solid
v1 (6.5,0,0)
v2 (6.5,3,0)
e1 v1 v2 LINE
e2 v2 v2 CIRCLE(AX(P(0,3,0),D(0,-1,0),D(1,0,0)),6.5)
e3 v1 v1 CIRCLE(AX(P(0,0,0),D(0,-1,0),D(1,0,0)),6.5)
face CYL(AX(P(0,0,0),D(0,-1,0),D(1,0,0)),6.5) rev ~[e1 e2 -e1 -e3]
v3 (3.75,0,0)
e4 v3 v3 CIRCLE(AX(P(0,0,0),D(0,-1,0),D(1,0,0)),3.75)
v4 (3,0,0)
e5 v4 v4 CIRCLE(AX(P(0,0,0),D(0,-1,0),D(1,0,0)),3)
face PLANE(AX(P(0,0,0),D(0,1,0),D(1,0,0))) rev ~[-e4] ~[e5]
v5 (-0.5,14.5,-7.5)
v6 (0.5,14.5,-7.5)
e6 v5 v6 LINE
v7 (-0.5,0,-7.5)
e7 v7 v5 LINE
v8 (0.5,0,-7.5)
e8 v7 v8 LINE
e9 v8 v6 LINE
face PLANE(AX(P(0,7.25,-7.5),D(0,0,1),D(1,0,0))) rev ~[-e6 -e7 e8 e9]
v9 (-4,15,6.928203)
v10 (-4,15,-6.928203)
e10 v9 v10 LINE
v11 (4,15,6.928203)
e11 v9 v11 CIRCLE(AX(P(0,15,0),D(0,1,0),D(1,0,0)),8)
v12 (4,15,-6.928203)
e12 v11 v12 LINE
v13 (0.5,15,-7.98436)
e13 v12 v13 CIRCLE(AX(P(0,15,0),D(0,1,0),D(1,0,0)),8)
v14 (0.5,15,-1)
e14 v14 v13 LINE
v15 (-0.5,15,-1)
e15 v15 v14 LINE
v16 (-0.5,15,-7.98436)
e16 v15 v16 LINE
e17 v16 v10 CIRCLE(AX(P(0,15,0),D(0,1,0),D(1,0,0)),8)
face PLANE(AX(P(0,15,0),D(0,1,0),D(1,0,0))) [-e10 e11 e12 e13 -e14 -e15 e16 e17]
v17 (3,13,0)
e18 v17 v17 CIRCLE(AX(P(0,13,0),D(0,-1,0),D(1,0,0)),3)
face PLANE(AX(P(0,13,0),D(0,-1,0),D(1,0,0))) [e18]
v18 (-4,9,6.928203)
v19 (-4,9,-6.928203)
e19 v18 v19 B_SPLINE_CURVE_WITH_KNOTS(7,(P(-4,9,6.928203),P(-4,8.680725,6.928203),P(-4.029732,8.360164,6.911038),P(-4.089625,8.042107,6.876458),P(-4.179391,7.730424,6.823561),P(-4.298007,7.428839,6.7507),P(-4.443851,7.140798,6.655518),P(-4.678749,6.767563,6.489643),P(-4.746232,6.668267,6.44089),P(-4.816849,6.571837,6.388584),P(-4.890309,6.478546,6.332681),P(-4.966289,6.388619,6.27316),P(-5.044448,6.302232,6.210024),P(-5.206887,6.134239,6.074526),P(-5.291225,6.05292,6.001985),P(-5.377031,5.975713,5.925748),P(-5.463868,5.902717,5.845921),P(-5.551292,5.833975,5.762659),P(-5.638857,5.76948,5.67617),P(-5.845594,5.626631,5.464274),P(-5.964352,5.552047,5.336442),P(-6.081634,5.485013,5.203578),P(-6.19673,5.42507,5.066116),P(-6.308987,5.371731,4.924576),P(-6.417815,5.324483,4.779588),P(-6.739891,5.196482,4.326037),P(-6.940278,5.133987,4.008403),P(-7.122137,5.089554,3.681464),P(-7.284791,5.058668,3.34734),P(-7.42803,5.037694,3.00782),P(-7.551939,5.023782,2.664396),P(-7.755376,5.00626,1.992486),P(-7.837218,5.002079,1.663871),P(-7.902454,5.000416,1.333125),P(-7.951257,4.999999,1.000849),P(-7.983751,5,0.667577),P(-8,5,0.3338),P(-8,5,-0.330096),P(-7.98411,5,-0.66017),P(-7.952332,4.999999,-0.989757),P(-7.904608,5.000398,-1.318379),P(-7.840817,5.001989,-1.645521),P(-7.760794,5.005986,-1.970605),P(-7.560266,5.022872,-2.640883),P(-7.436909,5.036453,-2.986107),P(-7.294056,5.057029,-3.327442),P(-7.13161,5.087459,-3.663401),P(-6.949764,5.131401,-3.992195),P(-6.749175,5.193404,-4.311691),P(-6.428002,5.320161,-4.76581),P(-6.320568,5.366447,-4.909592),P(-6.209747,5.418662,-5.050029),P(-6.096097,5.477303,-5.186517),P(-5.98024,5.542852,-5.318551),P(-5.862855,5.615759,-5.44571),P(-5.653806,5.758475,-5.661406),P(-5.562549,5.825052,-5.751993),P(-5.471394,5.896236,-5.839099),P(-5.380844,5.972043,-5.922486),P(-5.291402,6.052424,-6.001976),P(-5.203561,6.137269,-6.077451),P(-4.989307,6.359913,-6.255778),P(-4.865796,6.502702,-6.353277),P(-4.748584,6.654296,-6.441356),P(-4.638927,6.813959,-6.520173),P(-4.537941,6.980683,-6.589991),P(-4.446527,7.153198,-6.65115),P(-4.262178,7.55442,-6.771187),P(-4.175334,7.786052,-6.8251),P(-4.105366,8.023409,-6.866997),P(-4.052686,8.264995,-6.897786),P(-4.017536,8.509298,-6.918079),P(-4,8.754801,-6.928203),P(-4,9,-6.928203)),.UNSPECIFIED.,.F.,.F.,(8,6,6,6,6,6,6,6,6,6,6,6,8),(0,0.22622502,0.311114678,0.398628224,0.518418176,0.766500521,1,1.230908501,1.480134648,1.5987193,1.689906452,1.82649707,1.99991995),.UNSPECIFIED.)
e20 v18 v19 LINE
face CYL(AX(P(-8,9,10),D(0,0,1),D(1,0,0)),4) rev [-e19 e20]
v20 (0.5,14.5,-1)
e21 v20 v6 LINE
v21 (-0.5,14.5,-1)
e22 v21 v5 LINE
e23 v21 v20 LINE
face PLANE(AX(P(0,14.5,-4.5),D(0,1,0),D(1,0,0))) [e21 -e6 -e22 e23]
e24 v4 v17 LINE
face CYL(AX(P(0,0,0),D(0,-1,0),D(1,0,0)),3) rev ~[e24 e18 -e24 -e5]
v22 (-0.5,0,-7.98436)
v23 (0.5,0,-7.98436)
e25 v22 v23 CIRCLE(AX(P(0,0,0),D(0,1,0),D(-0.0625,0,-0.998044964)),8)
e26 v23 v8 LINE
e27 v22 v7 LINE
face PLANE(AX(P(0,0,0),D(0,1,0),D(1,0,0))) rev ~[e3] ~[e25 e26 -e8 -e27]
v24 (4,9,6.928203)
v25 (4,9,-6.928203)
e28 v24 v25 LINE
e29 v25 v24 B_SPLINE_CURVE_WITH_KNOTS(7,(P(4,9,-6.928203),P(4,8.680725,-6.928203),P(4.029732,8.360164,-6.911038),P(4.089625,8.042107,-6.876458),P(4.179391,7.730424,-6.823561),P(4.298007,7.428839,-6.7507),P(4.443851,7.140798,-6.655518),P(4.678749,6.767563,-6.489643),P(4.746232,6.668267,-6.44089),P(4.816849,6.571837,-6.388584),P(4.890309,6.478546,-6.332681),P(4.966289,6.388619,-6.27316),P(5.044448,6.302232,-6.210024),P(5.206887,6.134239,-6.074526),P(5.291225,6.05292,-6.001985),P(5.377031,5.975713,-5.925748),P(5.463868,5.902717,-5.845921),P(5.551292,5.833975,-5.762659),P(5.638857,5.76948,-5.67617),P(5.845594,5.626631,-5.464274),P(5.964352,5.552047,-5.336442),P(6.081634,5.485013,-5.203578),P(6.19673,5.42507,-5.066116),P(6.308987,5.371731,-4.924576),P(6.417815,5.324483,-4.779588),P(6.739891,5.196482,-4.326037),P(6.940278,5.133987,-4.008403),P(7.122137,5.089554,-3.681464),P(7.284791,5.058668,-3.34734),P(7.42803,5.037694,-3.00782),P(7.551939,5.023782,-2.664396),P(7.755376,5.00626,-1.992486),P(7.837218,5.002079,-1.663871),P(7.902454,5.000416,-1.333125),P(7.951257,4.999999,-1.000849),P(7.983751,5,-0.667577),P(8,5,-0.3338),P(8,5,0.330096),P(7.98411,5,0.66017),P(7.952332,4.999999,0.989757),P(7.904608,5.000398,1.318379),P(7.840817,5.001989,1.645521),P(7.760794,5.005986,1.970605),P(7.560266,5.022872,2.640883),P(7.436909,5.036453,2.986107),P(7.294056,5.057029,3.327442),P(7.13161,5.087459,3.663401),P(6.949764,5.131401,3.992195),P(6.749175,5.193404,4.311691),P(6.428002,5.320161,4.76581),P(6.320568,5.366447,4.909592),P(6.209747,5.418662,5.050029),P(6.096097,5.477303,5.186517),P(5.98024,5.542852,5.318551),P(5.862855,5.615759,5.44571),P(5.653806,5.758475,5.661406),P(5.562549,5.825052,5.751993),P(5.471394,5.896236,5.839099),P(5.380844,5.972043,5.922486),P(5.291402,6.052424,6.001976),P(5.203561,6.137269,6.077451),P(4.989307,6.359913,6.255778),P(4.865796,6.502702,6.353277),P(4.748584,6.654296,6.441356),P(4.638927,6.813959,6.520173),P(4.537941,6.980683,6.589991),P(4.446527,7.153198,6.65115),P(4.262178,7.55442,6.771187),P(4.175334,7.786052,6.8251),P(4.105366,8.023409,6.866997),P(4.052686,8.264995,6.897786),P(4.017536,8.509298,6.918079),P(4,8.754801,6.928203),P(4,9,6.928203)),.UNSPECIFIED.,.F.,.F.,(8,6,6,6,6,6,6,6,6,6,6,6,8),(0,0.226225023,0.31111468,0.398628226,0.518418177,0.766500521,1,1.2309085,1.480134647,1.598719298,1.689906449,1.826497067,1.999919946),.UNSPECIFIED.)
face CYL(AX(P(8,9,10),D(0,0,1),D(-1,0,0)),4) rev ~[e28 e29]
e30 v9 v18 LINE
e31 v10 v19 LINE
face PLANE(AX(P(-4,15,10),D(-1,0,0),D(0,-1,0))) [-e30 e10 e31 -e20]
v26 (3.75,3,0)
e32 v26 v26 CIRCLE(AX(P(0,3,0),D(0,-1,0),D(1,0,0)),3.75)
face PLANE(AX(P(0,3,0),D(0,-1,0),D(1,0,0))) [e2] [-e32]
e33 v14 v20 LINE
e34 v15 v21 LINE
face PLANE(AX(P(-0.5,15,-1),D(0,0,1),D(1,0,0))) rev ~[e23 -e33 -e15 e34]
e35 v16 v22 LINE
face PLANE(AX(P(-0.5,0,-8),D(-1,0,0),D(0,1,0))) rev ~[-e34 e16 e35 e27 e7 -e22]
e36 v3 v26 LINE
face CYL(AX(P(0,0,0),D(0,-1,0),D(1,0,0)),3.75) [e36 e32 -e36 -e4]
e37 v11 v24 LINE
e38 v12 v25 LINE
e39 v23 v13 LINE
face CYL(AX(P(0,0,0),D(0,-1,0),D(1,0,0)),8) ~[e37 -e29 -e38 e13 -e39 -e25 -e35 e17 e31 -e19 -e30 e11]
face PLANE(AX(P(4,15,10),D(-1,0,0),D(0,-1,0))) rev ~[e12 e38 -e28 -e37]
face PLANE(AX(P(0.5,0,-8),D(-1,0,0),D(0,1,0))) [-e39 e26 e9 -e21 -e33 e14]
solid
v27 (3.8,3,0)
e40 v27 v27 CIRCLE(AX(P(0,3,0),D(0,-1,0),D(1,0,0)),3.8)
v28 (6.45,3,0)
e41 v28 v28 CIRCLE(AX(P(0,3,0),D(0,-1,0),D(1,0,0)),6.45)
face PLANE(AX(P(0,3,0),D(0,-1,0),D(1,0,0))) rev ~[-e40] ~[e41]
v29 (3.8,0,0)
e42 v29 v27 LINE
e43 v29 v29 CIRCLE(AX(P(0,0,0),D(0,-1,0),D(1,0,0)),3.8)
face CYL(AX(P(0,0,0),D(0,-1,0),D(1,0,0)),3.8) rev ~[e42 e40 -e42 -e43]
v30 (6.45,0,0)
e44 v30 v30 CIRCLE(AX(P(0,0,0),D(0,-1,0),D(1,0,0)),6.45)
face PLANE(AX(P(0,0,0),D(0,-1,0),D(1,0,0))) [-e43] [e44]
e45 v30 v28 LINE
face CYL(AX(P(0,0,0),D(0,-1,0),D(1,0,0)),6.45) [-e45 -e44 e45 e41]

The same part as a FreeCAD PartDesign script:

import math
import FreeCAD as App
import Part
import Sketcher
from FreeCAD import Vector
Q = App.Units.Quantity

doc = App.newDocument("Part")
body = doc.addObject("PartDesign::Body", "Body")

sketch1 = body.newObject("Sketcher::SketchObject", "Sketch")
sketch1.AttachmentSupport = (doc.getObject("XZ_Plane"), [""])
sketch1.MapMode = "FlatFace"
sketch1.addGeometry(Part.Circle(Vector(0, 0, 0), Vector(0, 0, 1), 8), False)
sketch1.addConstraint([
    Sketcher.Constraint("Coincident", 0, 3, -1, 1),
    Sketcher.Constraint("Diameter", 0, Q("16 mm")),
])
pad1 = body.newObject("PartDesign::Pad", "Pad")
pad1.Profile = sketch1
pad1.Length = 15
pad1.Reversed = True

sketch2 = body.newObject("Sketcher::SketchObject", "Sketch001")
sketch2.AttachmentSupport = (doc.getObject("XY_Plane"), [""])
sketch2.MapMode = "FlatFace"
sketch2.AttachmentOffset = App.Placement(Vector(0, 0, 10), App.Rotation())
sketch2.addGeometry([
    Part.LineSegment(Vector(-4, 9, 0), Vector(-4, 15, 0)),
    Part.LineSegment(Vector(-4, 15, 0), Vector(-8, 15, 0)),
    Part.LineSegment(Vector(-8, 15, 0), Vector(-8, 5, 0)),
    Part.ArcOfCircle(Part.Circle(Vector(-8, 9, 0), Vector(0, 0, 1), 4), math.radians(-90), math.radians(0)),
    Part.LineSegment(Vector(4, 15, 0), Vector(4, 9, 0)),
    Part.ArcOfCircle(Part.Circle(Vector(8, 9, 0), Vector(0, 0, 1), 4), math.radians(180), math.radians(270)),
    Part.LineSegment(Vector(8, 5, 0), Vector(8, 15, 0)),
    Part.LineSegment(Vector(8, 15, 0), Vector(4, 15, 0)),
], False)
sketch2.addConstraint([
    Sketcher.Constraint("Coincident", 0, 2, 1, 1),
    Sketcher.Constraint("Coincident", 1, 2, 2, 1),
    Sketcher.Constraint("Coincident", 2, 2, 3, 1),
    Sketcher.Constraint("Tangent", 3, 2, 0, 1),
    Sketcher.Constraint("Tangent", 4, 2, 5, 1),
    Sketcher.Constraint("Coincident", 5, 2, 6, 1),
    Sketcher.Constraint("Coincident", 6, 2, 7, 1),
    Sketcher.Constraint("Coincident", 7, 2, 4, 1),
    Sketcher.Constraint("Vertical", 0),
    Sketcher.Constraint("Horizontal", 1),
    Sketcher.Constraint("Vertical", 2),
    Sketcher.Constraint("Vertical", 4),
    Sketcher.Constraint("Vertical", 6),
    Sketcher.Constraint("Horizontal", 7),
    Sketcher.Constraint("Equal", 3, 5),
    Sketcher.Constraint("Symmetric", 3, 3, 5, 3, -2),
    Sketcher.Constraint("Symmetric", 1, 2, 6, 2, -2),
    Sketcher.Constraint("Vertical", 3, 3, 1, 2),
    Sketcher.Constraint("Radius", 3, Q("4 mm")),
    Sketcher.Constraint("DistanceY", 0, 1, 0, 2, Q("6 mm")),
    Sketcher.Constraint("DistanceX", 3, 3, -1, 1, Q("8 mm")),
    Sketcher.Constraint("DistanceY", -1, 1, 3, 3, Q("9 mm")),
])
pocket1 = body.newObject("PartDesign::Pocket", "Pocket")
pocket1.Profile = sketch2
pocket1.Length = 25

sketch3 = body.newObject("Sketcher::SketchObject", "Sketch002")
sketch3.AttachmentSupport = (doc.getObject("XZ_Plane"), [""])
sketch3.MapMode = "FlatFace"
sketch3.addGeometry(Part.Circle(Vector(0, 0, 0), Vector(0, 0, 1), 3), False)
sketch3.addConstraint([
    Sketcher.Constraint("Coincident", 0, 3, -1, 1),
    Sketcher.Constraint("Diameter", 0, Q("6 mm")),
])
pocket2 = body.newObject("PartDesign::Pocket", "Pocket001")
pocket2.Profile = sketch3
pocket2.Length = 13

sketch4 = body.newObject("Sketcher::SketchObject", "Sketch003")
sketch4.AttachmentSupport = (doc.getObject("XZ_Plane"), [""])
sketch4.MapMode = "FlatFace"
sketch4.addGeometry([
    Part.Circle(Vector(0, 0, 0), Vector(0, 0, 1), 6.5),
    Part.Circle(Vector(0, 0, 0), Vector(0, 0, 1), 3.75),
], False)
sketch4.addConstraint([
    Sketcher.Constraint("Coincident", 0, 3, -1, 1),
    Sketcher.Constraint("Coincident", 1, 3, -1, 1),
    Sketcher.Constraint("Diameter", 0, Q("13 mm")),
    Sketcher.Constraint("Diameter", 1, Q("7.5 mm")),
])
pocket3 = body.newObject("PartDesign::Pocket", "Pocket002")
pocket3.Profile = sketch4
pocket3.Length = 3

sketch5 = body.newObject("Sketcher::SketchObject", "Sketch004")
sketch5.AttachmentSupport = (doc.getObject("XZ_Plane"), [""])
sketch5.MapMode = "FlatFace"
sketch5.AttachmentOffset = App.Placement(Vector(0, 0, -15), App.Rotation())
sketch5.addGeometry([
    Part.LineSegment(Vector(-0.5, -8, 0), Vector(-0.5, -1, 0)),
    Part.LineSegment(Vector(-0.5, -1, 0), Vector(0.5, -1, 0)),
    Part.LineSegment(Vector(0.5, -1, 0), Vector(0.5, -8, 0)),
    Part.LineSegment(Vector(0.5, -8, 0), Vector(-0.5, -8, 0)),
], False)
sketch5.addConstraint([
    Sketcher.Constraint("Coincident", 0, 2, 1, 1),
    Sketcher.Constraint("Coincident", 1, 2, 2, 1),
    Sketcher.Constraint("Coincident", 2, 2, 3, 1),
    Sketcher.Constraint("Coincident", 3, 2, 0, 1),
    Sketcher.Constraint("Vertical", 0),
    Sketcher.Constraint("Horizontal", 1),
    Sketcher.Constraint("Vertical", 2),
    Sketcher.Constraint("Horizontal", 3),
    Sketcher.Constraint("DistanceX", 1, 1, 1, 2, Q("1 mm")),
    Sketcher.Constraint("DistanceY", 0, 1, 0, 2, Q("7 mm")),
    Sketcher.Constraint("DistanceY", 0, 2, -1, 1, Q("1 mm")),
    Sketcher.Constraint("DistanceX", 0, 2, -1, 1, Q("0.5 mm")),
])
pocket4 = body.newObject("PartDesign::Pocket", "Pocket003")
pocket4.Profile = sketch5
pocket4.Length = 0.5
pocket4.Reversed = True

sketch6 = body.newObject("Sketcher::SketchObject", "Sketch005")
sketch6.AttachmentSupport = (doc.getObject("XY_Plane"), [""])
sketch6.MapMode = "FlatFace"
sketch6.AttachmentOffset = App.Placement(Vector(0, 0, -8), App.Rotation())
sketch6.addGeometry([
    Part.LineSegment(Vector(-0.5, 14.5, 0), Vector(-0.5, 0, 0)),
    Part.LineSegment(Vector(-0.5, 0, 0), Vector(0.5, 0, 0)),
    Part.LineSegment(Vector(0.5, 0, 0), Vector(0.5, 14.5, 0)),
    Part.LineSegment(Vector(0.5, 14.5, 0), Vector(-0.5, 14.5, 0)),
], False)
sketch6.addConstraint([
    Sketcher.Constraint("Coincident", 0, 2, 1, 1),
    Sketcher.Constraint("Coincident", 1, 2, 2, 1),
    Sketcher.Constraint("Coincident", 2, 2, 3, 1),
    Sketcher.Constraint("Coincident", 3, 2, 0, 1),
    Sketcher.Constraint("Vertical", 0),
    Sketcher.Constraint("Horizontal", 1),
    Sketcher.Constraint("Vertical", 2),
    Sketcher.Constraint("Horizontal", 3),
    Sketcher.Constraint("Symmetric", 0, 2, 1, 2, -1, 1),
    Sketcher.Constraint("DistanceX", 1, 1, 1, 2, Q("1 mm")),
    Sketcher.Constraint("DistanceY", 0, 2, 0, 1, Q("14.5 mm")),
])
pocket5 = body.newObject("PartDesign::Pocket", "Pocket004")
pocket5.Profile = sketch6
pocket5.Length = 0.5
pocket5.Reversed = True
body2 = doc.addObject("PartDesign::Body", "Body001")

sketch7 = body2.newObject("Sketcher::SketchObject", "Sketch006")
sketch7.AttachmentSupport = (doc.getObject("XZ_Plane001"), [""])
sketch7.MapMode = "FlatFace"
sketch7.addGeometry([
    Part.Circle(Vector(0, 0, 0), Vector(0, 0, 1), 6.45),
    Part.Circle(Vector(0, 0, 0), Vector(0, 0, 1), 3.8),
], False)
sketch7.addConstraint([
    Sketcher.Constraint("Coincident", 0, 3, -1, 1),
    Sketcher.Constraint("Coincident", 1, 3, -1, 1),
    Sketcher.Constraint("Diameter", 0, Q("12.9 mm")),
    Sketcher.Constraint("Diameter", 1, Q("7.6 mm")),
])
pad2 = body2.newObject("PartDesign::Pad", "Pad001")
pad2.Profile = sketch7
pad2.Length = 3
pad2.Reversed = True

doc.recompute()
